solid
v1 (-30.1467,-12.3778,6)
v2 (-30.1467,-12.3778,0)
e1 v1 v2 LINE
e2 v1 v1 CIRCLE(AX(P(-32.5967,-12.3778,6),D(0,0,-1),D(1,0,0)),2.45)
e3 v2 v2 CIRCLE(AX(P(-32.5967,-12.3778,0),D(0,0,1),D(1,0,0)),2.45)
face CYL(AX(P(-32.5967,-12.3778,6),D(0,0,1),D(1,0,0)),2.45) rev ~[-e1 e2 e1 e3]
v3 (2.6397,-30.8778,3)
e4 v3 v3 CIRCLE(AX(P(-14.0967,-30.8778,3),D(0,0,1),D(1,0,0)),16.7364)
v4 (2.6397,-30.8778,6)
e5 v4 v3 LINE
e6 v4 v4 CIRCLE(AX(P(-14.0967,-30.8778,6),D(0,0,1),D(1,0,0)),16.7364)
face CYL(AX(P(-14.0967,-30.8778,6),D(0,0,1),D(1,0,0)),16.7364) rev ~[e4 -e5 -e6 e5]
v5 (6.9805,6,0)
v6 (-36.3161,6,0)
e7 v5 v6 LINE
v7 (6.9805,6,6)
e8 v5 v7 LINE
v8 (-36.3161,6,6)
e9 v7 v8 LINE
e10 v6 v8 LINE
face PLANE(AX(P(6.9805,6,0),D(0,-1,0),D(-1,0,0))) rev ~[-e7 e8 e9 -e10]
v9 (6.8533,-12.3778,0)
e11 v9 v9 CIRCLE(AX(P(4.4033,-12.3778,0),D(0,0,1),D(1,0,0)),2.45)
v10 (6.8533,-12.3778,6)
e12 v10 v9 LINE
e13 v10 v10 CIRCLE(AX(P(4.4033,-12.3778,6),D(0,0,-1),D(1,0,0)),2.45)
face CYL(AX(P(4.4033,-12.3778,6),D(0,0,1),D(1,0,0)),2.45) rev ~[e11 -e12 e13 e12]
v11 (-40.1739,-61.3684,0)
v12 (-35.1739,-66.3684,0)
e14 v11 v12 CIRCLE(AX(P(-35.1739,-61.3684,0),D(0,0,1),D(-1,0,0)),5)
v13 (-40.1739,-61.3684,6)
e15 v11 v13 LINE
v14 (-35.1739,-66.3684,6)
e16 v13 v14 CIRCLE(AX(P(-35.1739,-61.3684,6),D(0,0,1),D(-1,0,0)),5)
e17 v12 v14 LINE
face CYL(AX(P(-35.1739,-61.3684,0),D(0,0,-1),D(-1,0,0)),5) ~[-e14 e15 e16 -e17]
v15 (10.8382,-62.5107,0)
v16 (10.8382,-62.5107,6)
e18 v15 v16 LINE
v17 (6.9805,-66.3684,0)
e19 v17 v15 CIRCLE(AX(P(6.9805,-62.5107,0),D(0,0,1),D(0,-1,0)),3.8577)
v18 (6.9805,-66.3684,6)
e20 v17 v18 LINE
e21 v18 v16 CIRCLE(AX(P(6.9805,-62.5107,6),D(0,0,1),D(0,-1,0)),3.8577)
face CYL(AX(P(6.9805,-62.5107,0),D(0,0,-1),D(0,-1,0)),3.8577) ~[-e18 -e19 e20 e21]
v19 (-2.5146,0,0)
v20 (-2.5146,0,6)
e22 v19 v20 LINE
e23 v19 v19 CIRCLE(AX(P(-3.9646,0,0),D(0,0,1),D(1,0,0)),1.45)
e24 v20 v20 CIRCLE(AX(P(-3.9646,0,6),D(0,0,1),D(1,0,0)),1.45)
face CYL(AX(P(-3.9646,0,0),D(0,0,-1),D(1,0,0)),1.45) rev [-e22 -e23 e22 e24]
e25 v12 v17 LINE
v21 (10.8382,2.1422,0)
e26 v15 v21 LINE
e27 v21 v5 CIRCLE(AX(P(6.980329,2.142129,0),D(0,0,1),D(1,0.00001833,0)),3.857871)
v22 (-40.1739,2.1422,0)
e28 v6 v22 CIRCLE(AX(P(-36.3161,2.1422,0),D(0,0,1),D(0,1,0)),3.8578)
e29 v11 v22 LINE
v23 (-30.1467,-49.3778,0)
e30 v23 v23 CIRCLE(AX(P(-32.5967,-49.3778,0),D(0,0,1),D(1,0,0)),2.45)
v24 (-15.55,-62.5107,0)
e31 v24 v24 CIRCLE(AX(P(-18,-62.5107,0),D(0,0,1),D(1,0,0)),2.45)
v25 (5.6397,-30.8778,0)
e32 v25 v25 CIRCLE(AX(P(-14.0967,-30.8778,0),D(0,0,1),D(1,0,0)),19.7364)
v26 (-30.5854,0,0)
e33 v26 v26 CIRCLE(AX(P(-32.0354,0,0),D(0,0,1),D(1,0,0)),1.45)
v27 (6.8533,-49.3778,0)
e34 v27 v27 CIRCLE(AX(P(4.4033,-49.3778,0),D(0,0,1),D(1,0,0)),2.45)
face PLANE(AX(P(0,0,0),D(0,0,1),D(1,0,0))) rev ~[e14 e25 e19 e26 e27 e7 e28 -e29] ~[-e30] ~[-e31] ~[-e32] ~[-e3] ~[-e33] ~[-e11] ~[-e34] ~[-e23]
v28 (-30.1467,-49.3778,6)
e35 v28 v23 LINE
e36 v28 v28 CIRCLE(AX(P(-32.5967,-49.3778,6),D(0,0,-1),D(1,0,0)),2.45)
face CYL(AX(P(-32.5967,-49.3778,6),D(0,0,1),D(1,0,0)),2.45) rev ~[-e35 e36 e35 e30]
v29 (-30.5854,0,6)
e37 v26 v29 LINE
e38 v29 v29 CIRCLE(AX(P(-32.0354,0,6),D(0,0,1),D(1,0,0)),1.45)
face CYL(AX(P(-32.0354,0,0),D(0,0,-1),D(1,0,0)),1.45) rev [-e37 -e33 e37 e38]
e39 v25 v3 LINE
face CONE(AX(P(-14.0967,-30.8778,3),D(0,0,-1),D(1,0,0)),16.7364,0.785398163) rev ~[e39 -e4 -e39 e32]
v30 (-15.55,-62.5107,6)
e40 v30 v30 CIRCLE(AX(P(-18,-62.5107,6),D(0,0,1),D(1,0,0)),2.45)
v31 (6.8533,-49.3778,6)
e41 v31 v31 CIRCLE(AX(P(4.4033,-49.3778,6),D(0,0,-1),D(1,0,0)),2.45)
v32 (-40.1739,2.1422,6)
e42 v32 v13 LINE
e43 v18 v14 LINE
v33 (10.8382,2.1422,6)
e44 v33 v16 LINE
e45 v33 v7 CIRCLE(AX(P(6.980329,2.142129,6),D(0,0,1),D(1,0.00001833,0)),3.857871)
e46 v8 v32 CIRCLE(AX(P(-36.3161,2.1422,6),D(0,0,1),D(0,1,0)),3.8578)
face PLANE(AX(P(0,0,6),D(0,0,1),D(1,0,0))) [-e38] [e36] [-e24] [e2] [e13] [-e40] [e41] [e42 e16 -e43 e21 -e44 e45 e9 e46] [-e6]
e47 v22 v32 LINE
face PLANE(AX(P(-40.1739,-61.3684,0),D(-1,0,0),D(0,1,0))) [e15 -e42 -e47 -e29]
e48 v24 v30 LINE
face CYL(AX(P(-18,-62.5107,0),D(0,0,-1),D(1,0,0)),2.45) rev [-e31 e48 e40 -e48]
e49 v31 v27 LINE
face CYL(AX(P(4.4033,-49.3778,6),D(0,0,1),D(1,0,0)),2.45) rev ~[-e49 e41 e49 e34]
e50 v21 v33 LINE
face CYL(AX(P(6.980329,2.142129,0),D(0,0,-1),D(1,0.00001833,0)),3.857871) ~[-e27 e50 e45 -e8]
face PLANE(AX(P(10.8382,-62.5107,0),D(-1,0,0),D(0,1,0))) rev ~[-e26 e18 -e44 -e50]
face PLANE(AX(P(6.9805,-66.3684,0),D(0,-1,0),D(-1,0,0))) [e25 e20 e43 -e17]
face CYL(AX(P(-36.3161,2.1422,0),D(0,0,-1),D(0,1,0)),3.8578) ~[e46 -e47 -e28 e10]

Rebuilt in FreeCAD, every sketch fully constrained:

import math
import FreeCAD as App
import Part
import Sketcher
from FreeCAD import Vector
Q = App.Units.Quantity


def edges_at(feature, points):
    """Names of the edges that pass closest to the given points."""
    edges = feature.Shape.Edges
    near = lambda p: min(range(len(edges)), key=lambda i: edges[i].distToShape(Part.Vertex(*p))[0])
    return sorted({f"Edge{near(p) + 1}" for p in points})

doc = App.newDocument("Part")
params = doc.addObject("Spreadsheet::Sheet", "Params")
for row, (alias, value) in enumerate([
    ("sketch1_radius", "5 mm"),
    ("sketch1_diameter", "2.9 mm"),
    ("sketch1_diameter2", "4.9 mm"),
    ("pad1_length", "6 mm"),
    ("sketch2_diameter", "4.9 mm"),
    ("chamfer_size", "3 mm"),
], start=1):
    params.set(f"A{row}", alias)
    params.set(f"B{row}", "=" + value)
    params.setAlias(f"B{row}", alias)

body = doc.addObject("PartDesign::Body", "Body")

sketch1 = body.newObject("Sketcher::SketchObject", "Sketch")
sketch1.AttachmentSupport = (doc.getObject("XY_Plane"), [""])
sketch1.MapMode = "FlatFace"
sketch1.addGeometry(Part.ArcOfCircle(Part.Circle(Vector(6.9805, -62.5107, 0), Vector(0, 0, 1), 3.8577), math.radians(-90), math.radians(0)), False)
sketch1.addGeometry(Part.LineSegment(Vector(10.8382, -62.5107, 0), Vector(10.8382, 2.1422, 0)), False)
sketch1.addGeometry(Part.ArcOfCircle(Part.Circle(Vector(6.9805, 2.1422, 0), Vector(0, 0, 1), 3.8577), math.radians(0), math.radians(90)), False)
sketch1.addGeometry(Part.LineSegment(Vector(6.9805, 6, 0), Vector(-36.3161, 6, 0)), False)
sketch1.addGeometry(Part.ArcOfCircle(Part.Circle(Vector(-36.3161, 2.1422, 0), Vector(0, 0, 1), 3.8578), math.radians(90), math.radians(180)), False)
sketch1.addGeometry(Part.LineSegment(Vector(-40.1739, 2.1422, 0), Vector(-40.1739, -61.3684, 0)), False)
sketch1.addGeometry(Part.ArcOfCircle(Part.Circle(Vector(-35.1739, -61.3684, 0), Vector(0, 0, 1), 5), math.radians(180), math.radians(270)), False)
sketch1.addGeometry(Part.LineSegment(Vector(-35.1739, -66.3684, 0), Vector(6.9805, -66.3684, 0)), False)
sketch1.addGeometry(Part.Circle(Vector(-18, -62.5107, 0), Vector(0, 0, 1), 2.45), False)
sketch1.addGeometry(Part.Circle(Vector(-32.0354, 0, 0), Vector(0, 0, 1), 1.45), False)
sketch1.addGeometry(Part.Circle(Vector(-3.9646, 0, 0), Vector(0, 0, 1), 1.45), False)
sketch1.addConstraint(Sketcher.Constraint("Tangent", 0, 2, 1, 1))
sketch1.addConstraint(Sketcher.Constraint("Tangent", 1, 2, 2, 1))
sketch1.addConstraint(Sketcher.Constraint("Tangent", 2, 2, 3, 1))
sketch1.addConstraint(Sketcher.Constraint("Tangent", 3, 2, 4, 1))
sketch1.addConstraint(Sketcher.Constraint("Tangent", 4, 2, 5, 1))
sketch1.addConstraint(Sketcher.Constraint("Tangent", 5, 2, 6, 1))
sketch1.addConstraint(Sketcher.Constraint("Tangent", 6, 2, 7, 1))
sketch1.addConstraint(Sketcher.Constraint("Tangent", 7, 2, 0, 1))
sketch1.addConstraint(Sketcher.Constraint("Vertical", 1))
sketch1.addConstraint(Sketcher.Constraint("Horizontal", 3))
sketch1.addConstraint(Sketcher.Constraint("Vertical", 5))
sketch1.addConstraint(Sketcher.Constraint("Horizontal", 7))
sketch1.addConstraint(Sketcher.Constraint("Equal", 0, 2))
sketch1.addConstraint(Sketcher.Constraint("Equal", 2, 4))
sketch1.addConstraint(Sketcher.Constraint("Equal", 9, 10))
sketch1.addConstraint(Sketcher.Constraint("PointOnObject", 9, 3, -1))
sketch1.addConstraint(Sketcher.Constraint("PointOnObject", 10, 3, -1))
sketch1.addConstraint(Sketcher.Constraint("Horizontal", 0, 3, 8, 3))
sketch1.addConstraint(Sketcher.Constraint("Radius", 6, Q("5 mm")))
sketch1.addConstraint(Sketcher.Constraint("Diameter", 9, Q("2.9 mm")))
sketch1.addConstraint(Sketcher.Constraint("Diameter", 8, Q("4.9 mm")))
sketch1.addConstraint(Sketcher.Constraint("DistanceX", 8, 3, -1, 1, Q("18 mm")))
sketch1.addConstraint(Sketcher.Constraint("DistanceY", -1, 1, 2, 2, Q("6 mm")))
sketch1.addConstraint(Sketcher.Constraint("DistanceY", 0, 3, -1, 1, Q("62.5107 mm")))
sketch1.addConstraint(Sketcher.Constraint("Radius", 0, Q("3.8577 mm")))
sketch1.addConstraint(Sketcher.Constraint("DistanceX", 9, 3, 10, 3, Q("28.0708 mm")))
sketch1.addConstraint(Sketcher.Constraint("DistanceX", 3, 2, 3, 1, Q("43.2966 mm")))
sketch1.addConstraint(Sketcher.Constraint("DistanceX", 4, 3, -1, 1, Q("36.316 mm")))
sketch1.addConstraint(Sketcher.Constraint("DistanceX", 9, 3, 2, 3, Q("39.016 mm")))
sketch1.setExpression("Constraints[18]", "Params.sketch1_radius")
sketch1.setExpression("Constraints[19]", "Params.sketch1_diameter")
sketch1.setExpression("Constraints[20]", "Params.sketch1_diameter2")
pad1 = body.newObject("PartDesign::Pad", "Pad")
pad1.Profile = sketch1
pad1.setExpression("Length", "Params.pad1_length")

sketch2 = body.newObject("Sketcher::SketchObject", "Sketch001")
sketch2.AttachmentSupport = (doc.getObject("XY_Plane"), [""])
sketch2.MapMode = "FlatFace"
sketch2.AttachmentOffset = App.Placement(Vector(0, 0, 6), App.Rotation())
sketch2.addGeometry(Part.Circle(Vector(-14.0967, -30.8778, 0), Vector(0, 0, 1), 16.7364), False)
sketch2.addGeometry(Part.Circle(Vector(-32.5967, -49.3778, 0), Vector(0, 0, 1), 2.45), False)
sketch2.addGeometry(Part.Circle(Vector(4.4033, -49.3778, 0), Vector(0, 0, 1), 2.45), False)
sketch2.addGeometry(Part.Circle(Vector(-32.5967, -12.3778, 0), Vector(0, 0, 1), 2.45), False)
sketch2.addGeometry(Part.Circle(Vector(4.4033, -12.3778, 0), Vector(0, 0, 1), 2.45), False)
sketch2.addConstraint(Sketcher.Constraint("Equal", 1, 2))
sketch2.addConstraint(Sketcher.Constraint("Equal", 2, 3))
sketch2.addConstraint(Sketcher.Constraint("Equal", 3, 4))
sketch2.addConstraint(Sketcher.Constraint("Horizontal", 1, 3, 2, 3))
sketch2.addConstraint(Sketcher.Constraint("Horizontal", 3, 3, 4, 3))
sketch2.addConstraint(Sketcher.Constraint("Vertical", 1, 3, 3, 3))
sketch2.addConstraint(Sketcher.Constraint("Vertical", 2, 3, 4, 3))
sketch2.addConstraint(Sketcher.Constraint("Diameter", 1, Q("4.9 mm")))
sketch2.addConstraint(Sketcher.Constraint("DistanceX", 1, 3, 2, 3, Q("37 mm")))
sketch2.addConstraint(Sketcher.Constraint("DistanceY", 1, 3, 3, 3, Q("37 mm")))
sketch2.addConstraint(Sketcher.Constraint("Diameter", 0, Q("33.4728 mm")))
sketch2.addConstraint(Sketcher.Constraint("DistanceX", 1, 3, 0, 3, Q("18.5 mm")))
sketch2.addConstraint(Sketcher.Constraint("DistanceY", 1, 3, 0, 3, Q("18.5 mm")))
sketch2.addConstraint(Sketcher.Constraint("DistanceX", 0, 3, -1, 1, Q("14.0967 mm")))
sketch2.addConstraint(Sketcher.Constraint("DistanceY", 0, 3, -1, 1, Q("30.8778 mm")))
sketch2.setExpression("Constraints[7]", "Params.sketch2_diameter")
pocket1 = body.newObject("PartDesign::Pocket", "Pocket")
pocket1.Profile = sketch2
pocket1.Type = "ThroughAll"
doc.recompute()

chamfer = body.newObject("PartDesign::Chamfer", "Chamfer")
chamfer.Base = (pocket1, edges_at(pocket1, [(-30.833, -30.878, 0)]))
chamfer.setExpression("Size", "Params.chamfer_size")

doc.recompute()
